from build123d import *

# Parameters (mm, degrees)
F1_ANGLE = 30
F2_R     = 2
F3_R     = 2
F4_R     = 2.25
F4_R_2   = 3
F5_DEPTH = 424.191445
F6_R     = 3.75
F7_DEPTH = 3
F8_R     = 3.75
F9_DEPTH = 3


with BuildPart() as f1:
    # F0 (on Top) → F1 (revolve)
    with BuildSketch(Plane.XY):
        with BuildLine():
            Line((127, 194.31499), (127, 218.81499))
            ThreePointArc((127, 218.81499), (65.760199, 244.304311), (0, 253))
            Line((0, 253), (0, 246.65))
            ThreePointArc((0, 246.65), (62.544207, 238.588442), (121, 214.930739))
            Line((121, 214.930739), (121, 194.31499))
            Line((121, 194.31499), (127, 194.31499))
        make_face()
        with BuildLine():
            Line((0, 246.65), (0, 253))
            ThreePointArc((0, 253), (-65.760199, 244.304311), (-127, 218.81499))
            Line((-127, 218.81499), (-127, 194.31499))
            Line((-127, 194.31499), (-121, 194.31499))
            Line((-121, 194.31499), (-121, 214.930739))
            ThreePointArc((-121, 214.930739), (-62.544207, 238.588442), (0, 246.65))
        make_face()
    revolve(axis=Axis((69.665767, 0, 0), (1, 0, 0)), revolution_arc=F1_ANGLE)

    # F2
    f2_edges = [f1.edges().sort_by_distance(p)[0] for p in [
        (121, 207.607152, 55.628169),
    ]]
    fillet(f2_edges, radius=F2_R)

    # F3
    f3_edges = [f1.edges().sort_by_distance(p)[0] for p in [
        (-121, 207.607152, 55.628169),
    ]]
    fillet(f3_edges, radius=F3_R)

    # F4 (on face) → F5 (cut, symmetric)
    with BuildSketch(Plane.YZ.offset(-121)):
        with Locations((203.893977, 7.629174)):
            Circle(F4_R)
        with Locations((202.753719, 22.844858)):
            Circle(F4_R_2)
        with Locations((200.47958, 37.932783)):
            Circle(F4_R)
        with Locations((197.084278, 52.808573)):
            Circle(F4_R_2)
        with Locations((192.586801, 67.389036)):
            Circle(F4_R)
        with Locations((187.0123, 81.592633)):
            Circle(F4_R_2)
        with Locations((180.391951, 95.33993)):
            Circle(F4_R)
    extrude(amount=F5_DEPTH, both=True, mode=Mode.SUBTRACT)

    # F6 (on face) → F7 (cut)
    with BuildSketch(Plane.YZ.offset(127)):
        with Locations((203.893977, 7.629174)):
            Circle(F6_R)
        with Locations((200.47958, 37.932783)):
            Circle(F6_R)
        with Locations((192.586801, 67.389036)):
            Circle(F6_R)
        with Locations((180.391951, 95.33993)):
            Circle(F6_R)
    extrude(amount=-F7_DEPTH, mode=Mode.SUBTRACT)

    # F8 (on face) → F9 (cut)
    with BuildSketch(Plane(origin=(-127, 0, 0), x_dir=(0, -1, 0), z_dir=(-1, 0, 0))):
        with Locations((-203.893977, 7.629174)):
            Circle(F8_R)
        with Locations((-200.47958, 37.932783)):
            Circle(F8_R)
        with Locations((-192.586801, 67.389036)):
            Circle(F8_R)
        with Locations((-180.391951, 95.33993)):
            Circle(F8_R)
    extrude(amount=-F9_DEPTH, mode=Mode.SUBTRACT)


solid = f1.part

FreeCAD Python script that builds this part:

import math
import FreeCAD as App
import Part
import Sketcher

V = App.Vector


def edges_at(feature, points):
    """Names of the edges that pass closest to the given points."""
    edges = feature.Shape.Edges
    near = lambda p: min(range(len(edges)), key=lambda i: edges[i].distToShape(Part.Vertex(*p))[0])
    return sorted({f"Edge{near(p) + 1}" for p in points})

doc = App.newDocument("Part")
body = doc.addObject("PartDesign::Body", "Body")

sketch1 = body.newObject("Sketcher::SketchObject", "Sketch")
sketch1.AttachmentSupport = (doc.getObject("XY_Plane"), [""])
sketch1.MapMode = "FlatFace"
sketch1.addGeometry(Part.LineSegment(V(127, 194, 0), V(127, 219, 0)), False)
sketch1.addGeometry(Part.ArcOfCircle(Part.Circle(V(0, 0, 0), V(0, 0, 1), 253), math.radians(60), math.radians(90)), False)
sketch1.addGeometry(Part.ArcOfCircle(Part.Circle(V(0, 0, 0), V(0, 0, 1), 253), math.radians(90), math.radians(120)), False)
sketch1.addGeometry(Part.LineSegment(V(-127, 219, 0), V(-127, 194, 0)), False)
sketch1.addGeometry(Part.LineSegment(V(-127, 194, 0), V(-121, 194, 0)), False)
sketch1.addGeometry(Part.LineSegment(V(-121, 194, 0), V(-121, 215, 0)), False)
sketch1.addGeometry(Part.ArcOfCircle(Part.Circle(V(0, 0, 0), V(0, 0, 1), 247), math.radians(90), math.radians(119)), False)
sketch1.addGeometry(Part.ArcOfCircle(Part.Circle(V(0, 0, 0), V(0, 0, 1), 247), math.radians(61), math.radians(90)), False)
sketch1.addGeometry(Part.LineSegment(V(121, 215, 0), V(121, 194, 0)), False)
sketch1.addGeometry(Part.LineSegment(V(121, 194, 0), V(127, 194, 0)), False)
sketch1.addConstraint(Sketcher.Constraint("Coincident", 0, 2, 1, 1))
sketch1.addConstraint(Sketcher.Constraint("Tangent", 1, 2, 2, 1))
sketch1.addConstraint(Sketcher.Constraint("Coincident", 2, 2, 3, 1))
sketch1.addConstraint(Sketcher.Constraint("Coincident", 3, 2, 4, 1))
sketch1.addConstraint(Sketcher.Constraint("Coincident", 4, 2, 5, 1))
sketch1.addConstraint(Sketcher.Constraint("Coincident", 5, 2, 6, 2))
sketch1.addConstraint(Sketcher.Constraint("Tangent", 6, 1, 7, 2))
sketch1.addConstraint(Sketcher.Constraint("Coincident", 7, 1, 8, 1))
sketch1.addConstraint(Sketcher.Constraint("Coincident", 8, 2, 9, 1))
sketch1.addConstraint(Sketcher.Constraint("Coincident", 9, 2, 0, 1))
sketch1.addConstraint(Sketcher.Constraint("Vertical", 0))
sketch1.addConstraint(Sketcher.Constraint("Vertical", 3))
sketch1.addConstraint(Sketcher.Constraint("Horizontal", 4))
sketch1.addConstraint(Sketcher.Constraint("Vertical", 5))
sketch1.addConstraint(Sketcher.Constraint("Vertical", 8))
sketch1.addConstraint(Sketcher.Constraint("Horizontal", 9))
sketch1.addConstraint(Sketcher.Constraint("Coincident", 6, 3, -1, 1))
sketch1.addConstraint(Sketcher.Constraint("Equal", 1, 2))
sketch1.addConstraint(Sketcher.Constraint("Equal", 6, 7))
sketch1.addConstraint(Sketcher.Constraint("Symmetric", 0, 2, 2, 2, -2))
sketch1.addConstraint(Sketcher.Constraint("Symmetric", 4, 2, 8, 2, -2))
sketch1.addConstraint(Sketcher.Constraint("PointOnObject", 1, 2, -2))
sketch1.addConstraint(Sketcher.Constraint("PointOnObject", 6, 1, -2))
sketch1.addConstraint(Sketcher.Constraint("DistanceX", 4, 1, 4, 2, 6.0))
sketch1.addConstraint(Sketcher.Constraint("DistanceY", 0, 1, 0, 2, 24.5))
sketch1.addConstraint(Sketcher.Constraint("DistanceX", -1, 1, 0, 2, 127.0))
sketch1.addConstraint(Sketcher.Constraint("DistanceY", -1, 1, 1, 2, 253.0))
sketch1.addConstraint(Sketcher.Constraint("DistanceY", -1, 1, 6, 1, 246.65))
sketch1.addConstraint(Sketcher.Constraint("Radius", 1, 252.999988))
revolution = body.newObject("PartDesign::Revolution", "Revolution")
revolution.Profile = sketch1
revolution.ReferenceAxis = (sketch1, ["H_Axis"])
revolution.Angle = 30
doc.recompute()

fillet = body.newObject("PartDesign::Fillet", "Fillet")
fillet.Base = (revolution, edges_at(revolution, [(121, 207.607, 55.628)]))
fillet.Radius = 2
doc.recompute()

fillet2 = body.newObject("PartDesign::Fillet", "Fillet001")
fillet2.Base = (fillet, edges_at(fillet, [(-121, 207.607, 55.628)]))
fillet2.Radius = 2

sketch2 = body.newObject("Sketcher::SketchObject", "Sketch001")
sketch2.AttachmentSupport = (doc.getObject("YZ_Plane"), [""])
sketch2.MapMode = "FlatFace"
sketch2.AttachmentOffset = App.Placement(V(0, 0, -121), App.Rotation())
sketch2.addGeometry(Part.Circle(V(203.9, 7.6, 0), V(0, 0, 1), 2.2), False)
sketch2.addGeometry(Part.Circle(V(202.8, 22.8, 0), V(0, 0, 1), 3), False)
sketch2.addGeometry(Part.Circle(V(200.5, 37.9, 0), V(0, 0, 1), 2.2), False)
sketch2.addGeometry(Part.Circle(V(197.1, 52.8, 0), V(0, 0, 1), 3), False)
sketch2.addGeometry(Part.Circle(V(192.6, 67.4, 0), V(0, 0, 1), 2.2), False)
sketch2.addGeometry(Part.Circle(V(187, 81.6, 0), V(0, 0, 1), 3), False)
sketch2.addGeometry(Part.Circle(V(180.4, 95.3, 0), V(0, 0, 1), 2.2), False)
sketch2.addConstraint(Sketcher.Constraint("Equal", 0, 2))
sketch2.addConstraint(Sketcher.Constraint("Equal", 1, 3))
sketch2.addConstraint(Sketcher.Constraint("Equal", 2, 4))
sketch2.addConstraint(Sketcher.Constraint("Equal", 3, 5))
sketch2.addConstraint(Sketcher.Constraint("Equal", 4, 6))
sketch2.addConstraint(Sketcher.Constraint("Diameter", 1, 6.0))
sketch2.addConstraint(Sketcher.Constraint("Diameter", 0, 4.5))
sketch2.addConstraint(Sketcher.Constraint("DistanceX", -1, 1, 4, 3, 192.586801))
sketch2.addConstraint(Sketcher.Constraint("DistanceX", -1, 1, 5, 3, 187.0123))
sketch2.addConstraint(Sketcher.Constraint("DistanceX", 3, 3, 2, 3, 3.395302))
sketch2.addConstraint(Sketcher.Constraint("DistanceX", 3, 3, 0, 3, 6.809699))
sketch2.addConstraint(Sketcher.Constraint("DistanceY", 0, 3, 3, 3, 45.179399))
sketch2.addConstraint(Sketcher.Constraint("DistanceX", -1, 1, 1, 3, 202.753719))
sketch2.addConstraint(Sketcher.Constraint("DistanceX", -1, 1, 2, 3, 200.47958))
sketch2.addConstraint(Sketcher.Constraint("DistanceX", -1, 1, 6, 3, 180.391951))
sketch2.addConstraint(Sketcher.Constraint("DistanceY", -1, 1, 6, 3, 95.33993))
sketch2.addConstraint(Sketcher.Constraint("DistanceY", 0, 3, 2, 3, 30.303609))
sketch2.addConstraint(Sketcher.Constraint("DistanceY", 1, 3, 4, 3, 44.544178))
sketch2.addConstraint(Sketcher.Constraint("DistanceY", 3, 3, 5, 3, 28.78406))
sketch2.addConstraint(Sketcher.Constraint("DistanceY", 1, 3, 6, 3, 72.495072))
sketch2.addConstraint(Sketcher.Constraint("DistanceY", -1, 1, 0, 3, 7.629174))
pocket1 = body.newObject("PartDesign::Pocket", "Pocket")
pocket1.Profile = sketch2
pocket1.Length = 848.38289
pocket1.Midplane = True

sketch3 = body.newObject("Sketcher::SketchObject", "Sketch002")
sketch3.AttachmentSupport = (doc.getObject("YZ_Plane"), [""])
sketch3.MapMode = "FlatFace"
sketch3.AttachmentOffset = App.Placement(V(0, 0, 127), App.Rotation())
sketch3.addGeometry(Part.Circle(V(203.9, 7.6, 0), V(0, 0, 1), 3.8), False)
sketch3.addGeometry(Part.Circle(V(200.5, 37.9, 0), V(0, 0, 1), 3.8), False)
sketch3.addGeometry(Part.Circle(V(192.6, 67.4, 0), V(0, 0, 1), 3.8), False)
sketch3.addGeometry(Part.Circle(V(180.4, 95.3, 0), V(0, 0, 1), 3.8), False)
sketch3.addConstraint(Sketcher.Constraint("Equal", 0, 1))
sketch3.addConstraint(Sketcher.Constraint("Equal", 1, 2))
sketch3.addConstraint(Sketcher.Constraint("Equal", 2, 3))
sketch3.addConstraint(Sketcher.Constraint("Diameter", 0, 7.5))
sketch3.addConstraint(Sketcher.Constraint("DistanceX", -1, 1, 2, 3, 192.586801))
sketch3.addConstraint(Sketcher.Constraint("DistanceX", -1, 1, 1, 3, 200.47958))
sketch3.addConstraint(Sketcher.Constraint("DistanceX", -1, 1, 3, 3, 180.391951))
sketch3.addConstraint(Sketcher.Constraint("DistanceY", -1, 1, 3, 3, 95.33993))
sketch3.addConstraint(Sketcher.Constraint("DistanceY", 0, 3, 1, 3, 30.303609))
sketch3.addConstraint(Sketcher.Constraint("DistanceX", -1, 1, 0, 3, 203.893977))
sketch3.addConstraint(Sketcher.Constraint("DistanceY", -1, 1, 0, 3, 7.629174))
sketch3.addConstraint(Sketcher.Constraint("DistanceY", -1, 1, 2, 3, 67.389036))
pocket2 = body.newObject("PartDesign::Pocket", "Pocket001")
pocket2.Profile = sketch3
pocket2.Length = 3

sketch4 = body.newObject("Sketcher::SketchObject", "Sketch003")
sketch4.AttachmentSupport = (doc.getObject("YZ_Plane"), [""])
sketch4.MapMode = "FlatFace"
sketch4.AttachmentOffset = App.Placement(V(0, 0, -127), App.Rotation())
sketch4.addGeometry(Part.Circle(V(203.9, 7.6, 0), V(0, 0, 1), 3.8), False)
sketch4.addGeometry(Part.Circle(V(200.5, 37.9, 0), V(0, 0, 1), 3.8), False)
sketch4.addGeometry(Part.Circle(V(192.6, 67.4, 0), V(0, 0, 1), 3.8), False)
sketch4.addGeometry(Part.Circle(V(180.4, 95.3, 0), V(0, 0, 1), 3.8), False)
sketch4.addConstraint(Sketcher.Constraint("Equal", 0, 1))
sketch4.addConstraint(Sketcher.Constraint("Equal", 1, 2))
sketch4.addConstraint(Sketcher.Constraint("Equal", 2, 3))
sketch4.addConstraint(Sketcher.Constraint("Diameter", 0, 7.5))
sketch4.addConstraint(Sketcher.Constraint("DistanceX", -1, 1, 2, 3, 192.586801))
sketch4.addConstraint(Sketcher.Constraint("DistanceX", -1, 1, 1, 3, 200.47958))
sketch4.addConstraint(Sketcher.Constraint("DistanceX", -1, 1, 3, 3, 180.391951))
sketch4.addConstraint(Sketcher.Constraint("DistanceY", -1, 1, 3, 3, 95.33993))
sketch4.addConstraint(Sketcher.Constraint("DistanceY", 0, 3, 1, 3, 30.303609))
sketch4.addConstraint(Sketcher.Constraint("DistanceX", -1, 1, 0, 3, 203.893977))
sketch4.addConstraint(Sketcher.Constraint("DistanceY", -1, 1, 0, 3, 7.629174))
sketch4.addConstraint(Sketcher.Constraint("DistanceY", -1, 1, 2, 3, 67.389036))
pocket3 = body.newObject("PartDesign::Pocket", "Pocket002")
pocket3.Profile = sketch4
pocket3.Length = 3
pocket3.Reversed = True

doc.recompute()
